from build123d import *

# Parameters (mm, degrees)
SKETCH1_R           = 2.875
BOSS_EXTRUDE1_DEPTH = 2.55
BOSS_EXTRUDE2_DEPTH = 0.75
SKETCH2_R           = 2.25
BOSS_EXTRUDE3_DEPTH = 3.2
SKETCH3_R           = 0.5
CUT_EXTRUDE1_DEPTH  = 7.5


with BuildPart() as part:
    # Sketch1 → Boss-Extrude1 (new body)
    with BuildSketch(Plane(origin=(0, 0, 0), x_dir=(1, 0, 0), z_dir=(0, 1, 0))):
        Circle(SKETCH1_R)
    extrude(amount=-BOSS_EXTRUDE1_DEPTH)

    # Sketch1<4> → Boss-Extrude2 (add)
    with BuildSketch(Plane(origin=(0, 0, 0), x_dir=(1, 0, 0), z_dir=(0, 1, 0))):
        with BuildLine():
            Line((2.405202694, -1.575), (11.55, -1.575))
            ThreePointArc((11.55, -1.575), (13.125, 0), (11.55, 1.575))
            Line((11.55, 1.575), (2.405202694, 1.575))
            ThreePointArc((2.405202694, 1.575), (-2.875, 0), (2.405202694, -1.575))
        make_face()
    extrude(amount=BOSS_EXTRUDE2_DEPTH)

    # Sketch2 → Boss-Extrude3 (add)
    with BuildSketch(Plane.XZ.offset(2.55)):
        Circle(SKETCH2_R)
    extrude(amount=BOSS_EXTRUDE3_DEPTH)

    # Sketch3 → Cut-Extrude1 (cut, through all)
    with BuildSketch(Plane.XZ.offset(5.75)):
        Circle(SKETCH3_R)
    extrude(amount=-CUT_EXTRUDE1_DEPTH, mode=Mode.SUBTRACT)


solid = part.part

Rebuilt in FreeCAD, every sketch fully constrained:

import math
import FreeCAD as App
import Part
import Sketcher

doc = App.newDocument("Part")
body = doc.addObject("PartDesign::Body", "Body")

sketch1 = body.newObject("Sketcher::SketchObject", "Sketch")
sketch1.AttachmentSupport = (doc.getObject("XZ_Plane"), [""])
sketch1.MapMode = "FlatFace"
sketch1.addGeometry(Part.Circle(App.Vector(0, 0, 0), App.Vector(0, 0, 1), 2.875), False)
sketch1.addConstraint(Sketcher.Constraint("Coincident", 0, 3, -1, 1))
sketch1.addConstraint(Sketcher.Constraint("Diameter", 0, 5.75))
pad1 = body.newObject("PartDesign::Pad", "Pad")
pad1.Profile = sketch1
pad1.Length = 2.55

sketch2 = body.newObject("Sketcher::SketchObject", "Sketch001")
sketch2.AttachmentSupport = (doc.getObject("XZ_Plane"), [""])
sketch2.MapMode = "FlatFace"
sketch2.addGeometry(Part.LineSegment(App.Vector(2.405203, 1.575, 0), App.Vector(11.55, 1.575, 0)), False)
sketch2.addGeometry(Part.ArcOfCircle(Part.Circle(App.Vector(11.55, 0, 0), App.Vector(0, 0, 1), 1.575), math.radians(-90), math.radians(90)), False)
sketch2.addGeometry(Part.LineSegment(App.Vector(11.55, -1.575, 0), App.Vector(2.405203, -1.575, 0)), False)
sketch2.addGeometry(Part.ArcOfCircle(Part.Circle(App.Vector(0, 0, 0), App.Vector(0, 0, 1), 2.875), math.radians(33.218001), math.radians(326.781999)), False)
sketch2.addConstraint(Sketcher.Constraint("Tangent", 0, 2, 1, 2))
sketch2.addConstraint(Sketcher.Constraint("Tangent", 1, 1, 2, 1))
sketch2.addConstraint(Sketcher.Constraint("Coincident", 2, 2, 3, 2))
sketch2.addConstraint(Sketcher.Constraint("Coincident", 3, 1, 0, 1))
sketch2.addConstraint(Sketcher.Constraint("Horizontal", 0))
sketch2.addConstraint(Sketcher.Constraint("Horizontal", 2))
sketch2.addConstraint(Sketcher.Constraint("Coincident", 3, 3, -1, 1))
sketch2.addConstraint(Sketcher.Constraint("PointOnObject", 1, 3, -1))
sketch2.addConstraint(Sketcher.Constraint("Radius", 1, 1.575))
sketch2.addConstraint(Sketcher.Constraint("Radius", 3, 2.875))
sketch2.addConstraint(Sketcher.Constraint("DistanceX", -1, 1, 1, 3, 11.55))
pad2 = body.newObject("PartDesign::Pad", "Pad001")
pad2.Profile = sketch2
pad2.Length = 0.75
pad2.Reversed = True

sketch3 = body.newObject("Sketcher::SketchObject", "Sketch002")
sketch3.AttachmentSupport = (doc.getObject("XZ_Plane"), [""])
sketch3.MapMode = "FlatFace"
sketch3.AttachmentOffset = App.Placement(App.Vector(0, 0, 2.55), App.Rotation())
sketch3.addGeometry(Part.Circle(App.Vector(0, 0, 0), App.Vector(0, 0, 1), 2.25), False)
sketch3.addConstraint(Sketcher.Constraint("Coincident", 0, 3, -1, 1))
sketch3.addConstraint(Sketcher.Constraint("Diameter", 0, 4.5))
pad3 = body.newObject("PartDesign::Pad", "Pad002")
pad3.Profile = sketch3
pad3.Length = 3.2

sketch4 = body.newObject("Sketcher::SketchObject", "Sketch003")
sketch4.AttachmentSupport = (doc.getObject("XZ_Plane"), [""])
sketch4.MapMode = "FlatFace"
sketch4.AttachmentOffset = App.Placement(App.Vector(0, 0, 5.75), App.Rotation())
sketch4.addGeometry(Part.Circle(App.Vector(0, 0, 0), App.Vector(0, 0, 1), 0.5), False)
sketch4.addConstraint(Sketcher.Constraint("Coincident", 0, 3, -1, 1))
sketch4.addConstraint(Sketcher.Constraint("Diameter", 0, 1.0))
pocket1 = body.newObject("PartDesign::Pocket", "Pocket")
pocket1.Profile = sketch4
pocket1.Type = "ThroughAll"

doc.recompute()
